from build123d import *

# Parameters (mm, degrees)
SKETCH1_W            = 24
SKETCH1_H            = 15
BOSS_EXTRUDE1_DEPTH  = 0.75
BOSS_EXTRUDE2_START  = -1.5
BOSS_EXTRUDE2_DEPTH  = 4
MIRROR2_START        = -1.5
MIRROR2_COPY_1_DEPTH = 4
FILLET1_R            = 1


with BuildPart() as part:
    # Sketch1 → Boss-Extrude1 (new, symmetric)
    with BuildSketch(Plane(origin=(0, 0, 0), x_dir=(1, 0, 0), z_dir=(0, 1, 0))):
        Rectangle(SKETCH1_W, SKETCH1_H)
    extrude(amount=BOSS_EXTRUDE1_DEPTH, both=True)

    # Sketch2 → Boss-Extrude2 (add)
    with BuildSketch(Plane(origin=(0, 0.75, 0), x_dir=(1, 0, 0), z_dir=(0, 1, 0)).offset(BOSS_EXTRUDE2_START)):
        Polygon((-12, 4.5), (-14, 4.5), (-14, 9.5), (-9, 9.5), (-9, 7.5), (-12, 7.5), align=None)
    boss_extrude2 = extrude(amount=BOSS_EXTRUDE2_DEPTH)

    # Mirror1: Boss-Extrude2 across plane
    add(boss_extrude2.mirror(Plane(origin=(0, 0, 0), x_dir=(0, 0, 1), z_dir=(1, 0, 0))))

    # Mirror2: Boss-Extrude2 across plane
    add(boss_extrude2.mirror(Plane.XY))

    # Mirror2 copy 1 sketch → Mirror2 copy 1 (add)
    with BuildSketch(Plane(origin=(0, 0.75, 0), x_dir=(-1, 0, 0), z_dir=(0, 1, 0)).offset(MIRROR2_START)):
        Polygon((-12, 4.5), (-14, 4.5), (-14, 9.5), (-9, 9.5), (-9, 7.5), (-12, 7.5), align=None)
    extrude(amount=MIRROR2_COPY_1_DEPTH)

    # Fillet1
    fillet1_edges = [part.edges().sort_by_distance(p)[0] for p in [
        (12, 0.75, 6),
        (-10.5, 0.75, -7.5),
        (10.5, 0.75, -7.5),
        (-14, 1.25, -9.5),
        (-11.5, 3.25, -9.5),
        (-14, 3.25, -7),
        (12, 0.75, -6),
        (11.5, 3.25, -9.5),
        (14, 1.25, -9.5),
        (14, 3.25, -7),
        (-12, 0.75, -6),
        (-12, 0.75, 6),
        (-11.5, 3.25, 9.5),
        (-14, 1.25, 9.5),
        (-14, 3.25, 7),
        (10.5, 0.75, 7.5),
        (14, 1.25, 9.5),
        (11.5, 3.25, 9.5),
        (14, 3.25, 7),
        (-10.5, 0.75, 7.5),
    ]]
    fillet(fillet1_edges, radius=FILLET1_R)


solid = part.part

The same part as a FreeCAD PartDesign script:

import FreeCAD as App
import Part
import Sketcher

V = App.Vector


def edges_at(feature, points):
    """Names of the edges that pass closest to the given points."""
    edges = feature.Shape.Edges
    near = lambda p: min(range(len(edges)), key=lambda i: edges[i].distToShape(Part.Vertex(*p))[0])
    return sorted({f"Edge{near(p) + 1}" for p in points})


def add_polygon(sketch, points):
    """Adds a closed chain of lines whose ends are joined by coincident constraints."""
    first, n = sketch.GeometryCount, len(points)
    for a, b in zip(points, points[1:] + points[:1]):
        sketch.addGeometry(Part.LineSegment(App.Vector(*a, 0), App.Vector(*b, 0)), False)
    for i in range(n):
        sketch.addConstraint(Sketcher.Constraint("Coincident", first + i, 2, first + (i + 1) % n, 1))

doc = App.newDocument("Part")
params = doc.addObject("Spreadsheet::Sheet", "Params")
for row, (alias, value) in enumerate([
    ("sketch1_width", "24 mm"),
    ("sketch1_height", "15 mm"),
    ("pad1_length", "1.5 mm"),
    ("sketch2_width", "2 mm"),
    ("sketch2_width2", "3 mm"),
    ("pad2_length", "4 mm"),
    ("sketch3_width", "2 mm"),
    ("sketch3_width2", "3 mm"),
    ("pad3_length", "4 mm"),
    ("fillet_radius", "1 mm"),
], start=1):
    params.set(f"A{row}", alias)
    params.set(f"B{row}", "=" + value)
    params.setAlias(f"B{row}", alias)

body = doc.addObject("PartDesign::Body", "Body")

# Sketch on XZ plane
sketch1 = body.newObject("Sketcher::SketchObject", "Sketch")
sketch1.AttachmentSupport = (doc.getObject("XZ_Plane"), [""])
sketch1.MapMode = "FlatFace"
add_polygon(sketch1, [(-12, -7.5), (-12, 7.5), (12, 7.5), (12, -7.5)])  # lines 0-3
sketch1.addConstraint(Sketcher.Constraint("Vertical", 0))
sketch1.addConstraint(Sketcher.Constraint("Horizontal", 1))
sketch1.addConstraint(Sketcher.Constraint("Vertical", 2))
sketch1.addConstraint(Sketcher.Constraint("Horizontal", 3))
sketch1.addConstraint(Sketcher.Constraint("Symmetric", 0, 2, 2, 2, -1, 1))
sketch1.addConstraint(Sketcher.Constraint("DistanceX", 1, 1, 1, 2, 24.0))
sketch1.addConstraint(Sketcher.Constraint("DistanceY", 0, 1, 0, 2, 15.0))
sketch1.setExpression("Constraints[9]", "Params.sketch1_width")
sketch1.setExpression("Constraints[10]", "Params.sketch1_height")
pad1 = body.newObject("PartDesign::Pad", "Pad")
pad1.Profile = sketch1
pad1.setExpression("Length", "Params.pad1_length")
pad1.Midplane = True

# Sketch on XZ plane
sketch2 = body.newObject("Sketcher::SketchObject", "Sketch001")
sketch2.AttachmentSupport = (doc.getObject("XZ_Plane"), [""])
sketch2.MapMode = "FlatFace"
sketch2.AttachmentOffset = App.Placement(V(0, 0, 0.75), App.Rotation())
add_polygon(sketch2, [(-14, -4.5), (-12, -4.5), (-12, -7.5), (-9, -7.5), (-9, -9.5), (-14, -9.5)])  # lines 0-5
sketch2.addConstraint(Sketcher.Constraint("Horizontal", 0))
sketch2.addConstraint(Sketcher.Constraint("Vertical", 1))
sketch2.addConstraint(Sketcher.Constraint("Horizontal", 2))
sketch2.addConstraint(Sketcher.Constraint("Vertical", 3))
sketch2.addConstraint(Sketcher.Constraint("Horizontal", 4))
sketch2.addConstraint(Sketcher.Constraint("Vertical", 5))
sketch2.addConstraint(Sketcher.Constraint("Equal", 2, 1))
sketch2.addConstraint(Sketcher.Constraint("Equal", 0, 3))
sketch2.addConstraint(Sketcher.Constraint("DistanceX", 0, 1, 0, 2, 2.0))
sketch2.addConstraint(Sketcher.Constraint("DistanceX", 2, 1, 2, 2, 3.0))
sketch2.addConstraint(Sketcher.Constraint("DistanceX", 0, 2, -1, 1, 12.0))
sketch2.addConstraint(Sketcher.Constraint("DistanceY", 0, 2, -1, 1, 4.5))
sketch2.setExpression("Constraints[14]", "Params.sketch2_width")
sketch2.setExpression("Constraints[15]", "Params.sketch2_width2")
pad2 = body.newObject("PartDesign::Pad", "Pad001")
pad2.Profile = sketch2
pad2.setExpression("Length", "Params.pad2_length")
pad2.Reversed = True
doc.recompute()

mirrored = body.newObject("PartDesign::Mirrored", "Mirrored")
mirrored.Originals = [pad2]
mirrored.MirrorPlane = (doc.getObject("YZ_Plane"), [""])
body.Tip = mirrored
doc.recompute()

mirrored2 = body.newObject("PartDesign::Mirrored", "Mirrored001")
mirrored2.Originals = [pad2]
mirrored2.MirrorPlane = (doc.getObject("XY_Plane"), [""])
body.Tip = mirrored2

# Sketch on XZ plane
sketch3 = body.newObject("Sketcher::SketchObject", "Sketch002")
sketch3.AttachmentSupport = (doc.getObject("XZ_Plane"), [""])
sketch3.MapMode = "FlatFace"
sketch3.AttachmentOffset = App.Placement(V(0, 0, 0.75), App.Rotation())
add_polygon(sketch3, [(14, 4.5), (12, 4.5), (12, 7.5), (9, 7.5), (9, 9.5), (14, 9.5)])  # lines 0-5
sketch3.addConstraint(Sketcher.Constraint("Horizontal", 0))
sketch3.addConstraint(Sketcher.Constraint("Vertical", 1))
sketch3.addConstraint(Sketcher.Constraint("Horizontal", 2))
sketch3.addConstraint(Sketcher.Constraint("Vertical", 3))
sketch3.addConstraint(Sketcher.Constraint("Horizontal", 4))
sketch3.addConstraint(Sketcher.Constraint("Vertical", 5))
sketch3.addConstraint(Sketcher.Constraint("Equal", 2, 1))
sketch3.addConstraint(Sketcher.Constraint("Equal", 0, 3))
sketch3.addConstraint(Sketcher.Constraint("DistanceX", 0, 2, 0, 1, 2.0))
sketch3.addConstraint(Sketcher.Constraint("DistanceX", 2, 2, 2, 1, 3.0))
sketch3.addConstraint(Sketcher.Constraint("DistanceX", -1, 1, 0, 2, 12.0))
sketch3.addConstraint(Sketcher.Constraint("DistanceY", -1, 1, 0, 2, 4.5))
sketch3.setExpression("Constraints[14]", "Params.sketch3_width")
sketch3.setExpression("Constraints[15]", "Params.sketch3_width2")
pad3 = body.newObject("PartDesign::Pad", "Pad002")
pad3.Profile = sketch3
pad3.setExpression("Length", "Params.pad3_length")
pad3.Reversed = True
doc.recompute()

fillet = body.newObject("PartDesign::Fillet", "Fillet")
fillet.Base = (pad3, edges_at(pad3, [
    (12, 0.75, 6),
    (-10.5, 0.75, -7.5),
    (10.5, 0.75, -7.5),
    (-14, 1.25, -9.5),
    (-11.5, 3.25, -9.5),
    (-14, 3.25, -7),
    (12, 0.75, -6),
    (11.5, 3.25, -9.5),
    (14, 1.25, -9.5),
    (14, 3.25, -7),
    (-12, 0.75, -6),
    (-12, 0.75, 6),
    (-11.5, 3.25, 9.5),
    (-14, 1.25, 9.5),
    (-14, 3.25, 7),
    (10.5, 0.75, 7.5),
    (14, 1.25, 9.5),
    (11.5, 3.25, 9.5),
    (14, 3.25, 7),
    (-10.5, 0.75, 7.5),
]))
fillet.setExpression("Radius", "Params.fillet_radius")

doc.recompute()
